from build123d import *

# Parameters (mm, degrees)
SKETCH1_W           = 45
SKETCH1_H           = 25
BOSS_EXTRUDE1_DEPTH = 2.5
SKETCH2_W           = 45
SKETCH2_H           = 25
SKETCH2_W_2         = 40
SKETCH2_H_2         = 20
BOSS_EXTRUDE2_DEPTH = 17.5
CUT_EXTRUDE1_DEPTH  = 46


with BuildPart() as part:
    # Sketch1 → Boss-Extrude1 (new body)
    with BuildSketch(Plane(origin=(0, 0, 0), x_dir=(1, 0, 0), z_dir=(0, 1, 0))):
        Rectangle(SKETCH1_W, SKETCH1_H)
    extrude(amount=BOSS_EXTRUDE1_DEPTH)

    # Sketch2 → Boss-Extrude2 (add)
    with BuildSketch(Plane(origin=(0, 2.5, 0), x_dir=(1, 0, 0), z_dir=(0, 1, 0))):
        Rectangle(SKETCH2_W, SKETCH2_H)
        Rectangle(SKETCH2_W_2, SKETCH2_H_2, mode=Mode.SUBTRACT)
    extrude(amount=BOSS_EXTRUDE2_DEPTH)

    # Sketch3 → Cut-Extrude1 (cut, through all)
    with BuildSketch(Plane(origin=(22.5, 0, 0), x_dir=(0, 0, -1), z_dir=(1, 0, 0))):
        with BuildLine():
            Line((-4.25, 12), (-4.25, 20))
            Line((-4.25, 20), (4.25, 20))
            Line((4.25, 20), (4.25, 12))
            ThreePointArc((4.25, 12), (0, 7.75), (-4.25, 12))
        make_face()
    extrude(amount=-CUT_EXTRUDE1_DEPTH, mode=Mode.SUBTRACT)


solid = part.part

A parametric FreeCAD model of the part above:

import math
import FreeCAD as App
import Part
import Sketcher

V = App.Vector

doc = App.newDocument("Part")
body = doc.addObject("PartDesign::Body", "Body")

# Sketch on XZ plane
sketch1 = doc.addObject("Sketcher::SketchObject", "Sketch")
body.addObject(sketch1)
sketch1.AttachmentSupport = (doc.XZ_Plane, [""])
sketch1.MapMode = "FlatFace"
sketch1.addGeometry([
    Part.LineSegment(V(-22, -12, 0), V(-22, 12, 0)),
    Part.LineSegment(V(-22, 12, 0), V(22, 12, 0)),
    Part.LineSegment(V(22, 12, 0), V(22, -12, 0)),
    Part.LineSegment(V(22, -12, 0), V(-22, -12, 0)),
], False)
sketch1.addConstraint([
    Sketcher.Constraint("Coincident", 0, 2, 1, 1),
    Sketcher.Constraint("Coincident", 1, 2, 2, 1),
    Sketcher.Constraint("Coincident", 2, 2, 3, 1),
    Sketcher.Constraint("Coincident", 3, 2, 0, 1),
    Sketcher.Constraint("Vertical", 0),
    Sketcher.Constraint("Horizontal", 1),
    Sketcher.Constraint("Vertical", 2),
    Sketcher.Constraint("Horizontal", 3),
    Sketcher.Constraint("Symmetric", 0, 2, 2, 2, -1, 1),
    Sketcher.Constraint("DistanceX", 1, 1, 1, 2, 45.0),
    Sketcher.Constraint("DistanceY", 0, 1, 0, 2, 25.0),
])
pad1 = doc.addObject("PartDesign::Pad", "Pad")
body.addObject(pad1)
pad1.Profile = sketch1
pad1.Length = 2.5
pad1.Reversed = True

# Sketch on XZ plane
sketch2 = doc.addObject("Sketcher::SketchObject", "Sketch001")
body.addObject(sketch2)
sketch2.AttachmentSupport = (doc.XZ_Plane, [""])
sketch2.MapMode = "FlatFace"
sketch2.AttachmentOffset = App.Placement(V(0, 0, -2.5), App.Rotation())
sketch2.addGeometry([
    Part.LineSegment(V(-22, -12, 0), V(-22, 12, 0)),  # 0
    Part.LineSegment(V(-22, 12, 0), V(22, 12, 0)),  # 1
    Part.LineSegment(V(22, 12, 0), V(22, -12, 0)),  # 2
    Part.LineSegment(V(22, -12, 0), V(-22, -12, 0)),  # 3
    Part.LineSegment(V(20, 10, 0), V(-20, 10, 0)),  # 4
    Part.LineSegment(V(-20, 10, 0), V(-20, -10, 0)),  # 5
    Part.LineSegment(V(-20, -10, 0), V(20, -10, 0)),  # 6
    Part.LineSegment(V(20, -10, 0), V(20, 10, 0)),  # 7
], False)
sketch2.addConstraint([
    Sketcher.Constraint("Coincident", 0, 2, 1, 1),
    Sketcher.Constraint("Coincident", 1, 2, 2, 1),
    Sketcher.Constraint("Coincident", 2, 2, 3, 1),
    Sketcher.Constraint("Coincident", 3, 2, 0, 1),
    Sketcher.Constraint("Coincident", 4, 2, 5, 1),
    Sketcher.Constraint("Coincident", 5, 2, 6, 1),
    Sketcher.Constraint("Coincident", 6, 2, 7, 1),
    Sketcher.Constraint("Coincident", 7, 2, 4, 1),
    Sketcher.Constraint("Vertical", 0),
    Sketcher.Constraint("Horizontal", 1),
    Sketcher.Constraint("Vertical", 2),
    Sketcher.Constraint("Horizontal", 3),
    Sketcher.Constraint("Horizontal", 4),
    Sketcher.Constraint("Vertical", 5),
    Sketcher.Constraint("Horizontal", 6),
    Sketcher.Constraint("Vertical", 7),
    Sketcher.Constraint("Symmetric", 0, 2, 2, 2, -1, 1),
    Sketcher.Constraint("Symmetric", 4, 2, 6, 2, -1, 1),
    Sketcher.Constraint("DistanceX", 1, 1, 1, 2, 45.0),
    Sketcher.Constraint("DistanceX", 4, 2, 4, 1, 40.0),
    Sketcher.Constraint("DistanceY", 0, 1, 0, 2, 25.0),
    Sketcher.Constraint("DistanceY", 5, 2, 5, 1, 20.0),
])
pad2 = doc.addObject("PartDesign::Pad", "Pad001")
body.addObject(pad2)
pad2.Profile = sketch2
pad2.Length = 17.5
pad2.Reversed = True

# Sketch on YZ plane
sketch3 = doc.addObject("Sketcher::SketchObject", "Sketch002")
body.addObject(sketch3)
sketch3.AttachmentSupport = (doc.YZ_Plane, [""])
sketch3.MapMode = "FlatFace"
sketch3.AttachmentOffset = App.Placement(V(0, 0, 22.5), App.Rotation())
sketch3.addGeometry([
    Part.LineSegment(V(20, 4.2, 0), V(12, 4.2, 0)),
    Part.ArcOfCircle(Part.Circle(V(12, 0, 0), V(0, 0, 1), 4.2), math.radians(90), math.radians(270)),
    Part.LineSegment(V(12, -4.2, 0), V(20, -4.2, 0)),
    Part.LineSegment(V(20, -4.2, 0), V(20, 4.2, 0)),
], False)
sketch3.addConstraint([
    Sketcher.Constraint("Tangent", 0, 2, 1, 1),
    Sketcher.Constraint("Tangent", 1, 2, 2, 1),
    Sketcher.Constraint("Coincident", 2, 2, 3, 1),
    Sketcher.Constraint("Coincident", 3, 2, 0, 1),
    Sketcher.Constraint("Horizontal", 0),
    Sketcher.Constraint("Horizontal", 2),
    Sketcher.Constraint("Vertical", 3),
    Sketcher.Constraint("PointOnObject", 1, 3, -1),
    Sketcher.Constraint("DistanceX", 0, 2, 0, 1, 8.0),
    Sketcher.Constraint("Radius", 1, 4.25),
    Sketcher.Constraint("DistanceX", -1, 1, 1, 3, 12.0),
])
pocket1 = doc.addObject("PartDesign::Pocket", "Pocket")
body.addObject(pocket1)
pocket1.Profile = sketch3
pocket1.Type = "ThroughAll"

doc.recompute()
